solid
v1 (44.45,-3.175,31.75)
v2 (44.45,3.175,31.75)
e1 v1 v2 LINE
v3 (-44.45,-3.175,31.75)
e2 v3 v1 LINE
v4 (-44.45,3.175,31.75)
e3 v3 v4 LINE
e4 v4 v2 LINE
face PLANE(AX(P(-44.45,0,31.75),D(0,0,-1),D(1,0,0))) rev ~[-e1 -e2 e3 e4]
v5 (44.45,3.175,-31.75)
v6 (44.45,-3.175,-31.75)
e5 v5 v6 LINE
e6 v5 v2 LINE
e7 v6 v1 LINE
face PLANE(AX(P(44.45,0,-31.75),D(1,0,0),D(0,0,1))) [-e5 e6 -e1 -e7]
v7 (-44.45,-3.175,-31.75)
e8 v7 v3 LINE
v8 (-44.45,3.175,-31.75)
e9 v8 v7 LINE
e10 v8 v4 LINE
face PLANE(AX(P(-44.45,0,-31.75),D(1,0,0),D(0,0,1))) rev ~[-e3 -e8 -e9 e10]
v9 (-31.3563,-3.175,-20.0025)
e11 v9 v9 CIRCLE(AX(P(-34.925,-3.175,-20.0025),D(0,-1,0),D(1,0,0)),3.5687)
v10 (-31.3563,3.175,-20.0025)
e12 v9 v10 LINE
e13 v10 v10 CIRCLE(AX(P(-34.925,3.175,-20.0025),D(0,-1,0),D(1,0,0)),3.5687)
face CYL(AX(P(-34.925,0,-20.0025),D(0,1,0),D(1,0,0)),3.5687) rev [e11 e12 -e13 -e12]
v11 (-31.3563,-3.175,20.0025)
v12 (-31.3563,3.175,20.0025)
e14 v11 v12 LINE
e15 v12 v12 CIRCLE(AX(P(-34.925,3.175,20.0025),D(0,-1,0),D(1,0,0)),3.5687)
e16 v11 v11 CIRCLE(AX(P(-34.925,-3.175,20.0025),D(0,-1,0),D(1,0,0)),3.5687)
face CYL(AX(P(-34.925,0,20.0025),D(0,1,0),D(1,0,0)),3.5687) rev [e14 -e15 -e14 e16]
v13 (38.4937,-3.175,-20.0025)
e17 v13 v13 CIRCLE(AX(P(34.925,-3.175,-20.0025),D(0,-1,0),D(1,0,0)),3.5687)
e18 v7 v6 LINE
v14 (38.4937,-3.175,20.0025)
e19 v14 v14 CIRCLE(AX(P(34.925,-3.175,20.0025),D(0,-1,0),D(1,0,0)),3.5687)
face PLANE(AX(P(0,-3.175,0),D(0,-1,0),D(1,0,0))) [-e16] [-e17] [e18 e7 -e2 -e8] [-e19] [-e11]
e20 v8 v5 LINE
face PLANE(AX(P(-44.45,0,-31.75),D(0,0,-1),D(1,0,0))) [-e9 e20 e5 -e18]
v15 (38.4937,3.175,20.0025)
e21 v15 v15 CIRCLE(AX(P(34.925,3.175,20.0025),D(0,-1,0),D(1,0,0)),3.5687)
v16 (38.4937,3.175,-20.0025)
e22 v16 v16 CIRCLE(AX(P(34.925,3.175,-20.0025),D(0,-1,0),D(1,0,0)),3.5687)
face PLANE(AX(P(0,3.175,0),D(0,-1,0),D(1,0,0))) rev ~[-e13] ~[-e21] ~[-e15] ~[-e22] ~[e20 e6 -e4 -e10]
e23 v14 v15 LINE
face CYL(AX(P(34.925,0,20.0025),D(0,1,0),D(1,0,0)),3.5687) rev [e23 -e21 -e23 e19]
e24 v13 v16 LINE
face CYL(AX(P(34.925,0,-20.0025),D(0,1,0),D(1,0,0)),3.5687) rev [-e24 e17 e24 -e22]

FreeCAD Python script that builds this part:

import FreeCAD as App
import Part
import Sketcher

V = App.Vector
Q = App.Units.Quantity

doc = App.newDocument("Part")
body = doc.addObject("PartDesign::Body", "Body")

# Sketch on XZ plane
sketch1 = body.newObject("Sketcher::SketchObject", "Sketch")
sketch1.AttachmentSupport = (doc.getObject("XZ_Plane"), [""])
sketch1.MapMode = "FlatFace"
sketch1.addGeometry(Part.LineSegment(V(-44.5, 31.8, 0), V(-44.5, -31.8, 0)), False)
sketch1.addGeometry(Part.LineSegment(V(-44.5, -31.8, 0), V(44.5, -31.8, 0)), False)
sketch1.addGeometry(Part.LineSegment(V(44.5, -31.8, 0), V(44.5, 31.8, 0)), False)
sketch1.addGeometry(Part.LineSegment(V(44.5, 31.8, 0), V(-44.5, 31.8, 0)), False)
sketch1.addGeometry(Part.Circle(V(-34.9, -20, 0), V(0, 0, 1), 3.6), False)
sketch1.addGeometry(Part.Circle(V(34.9, -20, 0), V(0, 0, 1), 3.6), False)
sketch1.addGeometry(Part.Circle(V(-34.9, 20, 0), V(0, 0, 1), 3.6), False)
sketch1.addGeometry(Part.Circle(V(34.9, 20, 0), V(0, 0, 1), 3.6), False)
sketch1.addConstraint(Sketcher.Constraint("Coincident", 0, 2, 1, 1))
sketch1.addConstraint(Sketcher.Constraint("Coincident", 1, 2, 2, 1))
sketch1.addConstraint(Sketcher.Constraint("Coincident", 2, 2, 3, 1))
sketch1.addConstraint(Sketcher.Constraint("Coincident", 3, 2, 0, 1))
sketch1.addConstraint(Sketcher.Constraint("Vertical", 0))
sketch1.addConstraint(Sketcher.Constraint("Horizontal", 1))
sketch1.addConstraint(Sketcher.Constraint("Vertical", 2))
sketch1.addConstraint(Sketcher.Constraint("Horizontal", 3))
sketch1.addConstraint(Sketcher.Constraint("Equal", 4, 5))
sketch1.addConstraint(Sketcher.Constraint("Equal", 5, 6))
sketch1.addConstraint(Sketcher.Constraint("Equal", 6, 7))
sketch1.addConstraint(Sketcher.Constraint("Symmetric", 5, 3, 6, 3, -1, 1))
sketch1.addConstraint(Sketcher.Constraint("Symmetric", 4, 3, 7, 3, -1, 1))
sketch1.addConstraint(Sketcher.Constraint("Symmetric", 0, 2, 2, 2, -1, 1))
sketch1.addConstraint(Sketcher.Constraint("Symmetric", 4, 3, 5, 3, -2))
sketch1.addConstraint(Sketcher.Constraint("Diameter", 4, Q("0.281 in")))
sketch1.addConstraint(Sketcher.Constraint("DistanceX", 1, 1, 1, 2, Q("3.5 in")))
sketch1.addConstraint(Sketcher.Constraint("DistanceY", 0, 2, 0, 1, Q("2.5 in")))
sketch1.addConstraint(Sketcher.Constraint("DistanceX", 4, 3, 5, 3, Q("2.75 in")))
sketch1.addConstraint(Sketcher.Constraint("DistanceY", 4, 3, 6, 3, Q("1.575 in")))
pad1 = body.newObject("PartDesign::Pad", "Pad")
pad1.Profile = sketch1
pad1.Length = Q("0.25 in")
pad1.Midplane = True

doc.recompute()
